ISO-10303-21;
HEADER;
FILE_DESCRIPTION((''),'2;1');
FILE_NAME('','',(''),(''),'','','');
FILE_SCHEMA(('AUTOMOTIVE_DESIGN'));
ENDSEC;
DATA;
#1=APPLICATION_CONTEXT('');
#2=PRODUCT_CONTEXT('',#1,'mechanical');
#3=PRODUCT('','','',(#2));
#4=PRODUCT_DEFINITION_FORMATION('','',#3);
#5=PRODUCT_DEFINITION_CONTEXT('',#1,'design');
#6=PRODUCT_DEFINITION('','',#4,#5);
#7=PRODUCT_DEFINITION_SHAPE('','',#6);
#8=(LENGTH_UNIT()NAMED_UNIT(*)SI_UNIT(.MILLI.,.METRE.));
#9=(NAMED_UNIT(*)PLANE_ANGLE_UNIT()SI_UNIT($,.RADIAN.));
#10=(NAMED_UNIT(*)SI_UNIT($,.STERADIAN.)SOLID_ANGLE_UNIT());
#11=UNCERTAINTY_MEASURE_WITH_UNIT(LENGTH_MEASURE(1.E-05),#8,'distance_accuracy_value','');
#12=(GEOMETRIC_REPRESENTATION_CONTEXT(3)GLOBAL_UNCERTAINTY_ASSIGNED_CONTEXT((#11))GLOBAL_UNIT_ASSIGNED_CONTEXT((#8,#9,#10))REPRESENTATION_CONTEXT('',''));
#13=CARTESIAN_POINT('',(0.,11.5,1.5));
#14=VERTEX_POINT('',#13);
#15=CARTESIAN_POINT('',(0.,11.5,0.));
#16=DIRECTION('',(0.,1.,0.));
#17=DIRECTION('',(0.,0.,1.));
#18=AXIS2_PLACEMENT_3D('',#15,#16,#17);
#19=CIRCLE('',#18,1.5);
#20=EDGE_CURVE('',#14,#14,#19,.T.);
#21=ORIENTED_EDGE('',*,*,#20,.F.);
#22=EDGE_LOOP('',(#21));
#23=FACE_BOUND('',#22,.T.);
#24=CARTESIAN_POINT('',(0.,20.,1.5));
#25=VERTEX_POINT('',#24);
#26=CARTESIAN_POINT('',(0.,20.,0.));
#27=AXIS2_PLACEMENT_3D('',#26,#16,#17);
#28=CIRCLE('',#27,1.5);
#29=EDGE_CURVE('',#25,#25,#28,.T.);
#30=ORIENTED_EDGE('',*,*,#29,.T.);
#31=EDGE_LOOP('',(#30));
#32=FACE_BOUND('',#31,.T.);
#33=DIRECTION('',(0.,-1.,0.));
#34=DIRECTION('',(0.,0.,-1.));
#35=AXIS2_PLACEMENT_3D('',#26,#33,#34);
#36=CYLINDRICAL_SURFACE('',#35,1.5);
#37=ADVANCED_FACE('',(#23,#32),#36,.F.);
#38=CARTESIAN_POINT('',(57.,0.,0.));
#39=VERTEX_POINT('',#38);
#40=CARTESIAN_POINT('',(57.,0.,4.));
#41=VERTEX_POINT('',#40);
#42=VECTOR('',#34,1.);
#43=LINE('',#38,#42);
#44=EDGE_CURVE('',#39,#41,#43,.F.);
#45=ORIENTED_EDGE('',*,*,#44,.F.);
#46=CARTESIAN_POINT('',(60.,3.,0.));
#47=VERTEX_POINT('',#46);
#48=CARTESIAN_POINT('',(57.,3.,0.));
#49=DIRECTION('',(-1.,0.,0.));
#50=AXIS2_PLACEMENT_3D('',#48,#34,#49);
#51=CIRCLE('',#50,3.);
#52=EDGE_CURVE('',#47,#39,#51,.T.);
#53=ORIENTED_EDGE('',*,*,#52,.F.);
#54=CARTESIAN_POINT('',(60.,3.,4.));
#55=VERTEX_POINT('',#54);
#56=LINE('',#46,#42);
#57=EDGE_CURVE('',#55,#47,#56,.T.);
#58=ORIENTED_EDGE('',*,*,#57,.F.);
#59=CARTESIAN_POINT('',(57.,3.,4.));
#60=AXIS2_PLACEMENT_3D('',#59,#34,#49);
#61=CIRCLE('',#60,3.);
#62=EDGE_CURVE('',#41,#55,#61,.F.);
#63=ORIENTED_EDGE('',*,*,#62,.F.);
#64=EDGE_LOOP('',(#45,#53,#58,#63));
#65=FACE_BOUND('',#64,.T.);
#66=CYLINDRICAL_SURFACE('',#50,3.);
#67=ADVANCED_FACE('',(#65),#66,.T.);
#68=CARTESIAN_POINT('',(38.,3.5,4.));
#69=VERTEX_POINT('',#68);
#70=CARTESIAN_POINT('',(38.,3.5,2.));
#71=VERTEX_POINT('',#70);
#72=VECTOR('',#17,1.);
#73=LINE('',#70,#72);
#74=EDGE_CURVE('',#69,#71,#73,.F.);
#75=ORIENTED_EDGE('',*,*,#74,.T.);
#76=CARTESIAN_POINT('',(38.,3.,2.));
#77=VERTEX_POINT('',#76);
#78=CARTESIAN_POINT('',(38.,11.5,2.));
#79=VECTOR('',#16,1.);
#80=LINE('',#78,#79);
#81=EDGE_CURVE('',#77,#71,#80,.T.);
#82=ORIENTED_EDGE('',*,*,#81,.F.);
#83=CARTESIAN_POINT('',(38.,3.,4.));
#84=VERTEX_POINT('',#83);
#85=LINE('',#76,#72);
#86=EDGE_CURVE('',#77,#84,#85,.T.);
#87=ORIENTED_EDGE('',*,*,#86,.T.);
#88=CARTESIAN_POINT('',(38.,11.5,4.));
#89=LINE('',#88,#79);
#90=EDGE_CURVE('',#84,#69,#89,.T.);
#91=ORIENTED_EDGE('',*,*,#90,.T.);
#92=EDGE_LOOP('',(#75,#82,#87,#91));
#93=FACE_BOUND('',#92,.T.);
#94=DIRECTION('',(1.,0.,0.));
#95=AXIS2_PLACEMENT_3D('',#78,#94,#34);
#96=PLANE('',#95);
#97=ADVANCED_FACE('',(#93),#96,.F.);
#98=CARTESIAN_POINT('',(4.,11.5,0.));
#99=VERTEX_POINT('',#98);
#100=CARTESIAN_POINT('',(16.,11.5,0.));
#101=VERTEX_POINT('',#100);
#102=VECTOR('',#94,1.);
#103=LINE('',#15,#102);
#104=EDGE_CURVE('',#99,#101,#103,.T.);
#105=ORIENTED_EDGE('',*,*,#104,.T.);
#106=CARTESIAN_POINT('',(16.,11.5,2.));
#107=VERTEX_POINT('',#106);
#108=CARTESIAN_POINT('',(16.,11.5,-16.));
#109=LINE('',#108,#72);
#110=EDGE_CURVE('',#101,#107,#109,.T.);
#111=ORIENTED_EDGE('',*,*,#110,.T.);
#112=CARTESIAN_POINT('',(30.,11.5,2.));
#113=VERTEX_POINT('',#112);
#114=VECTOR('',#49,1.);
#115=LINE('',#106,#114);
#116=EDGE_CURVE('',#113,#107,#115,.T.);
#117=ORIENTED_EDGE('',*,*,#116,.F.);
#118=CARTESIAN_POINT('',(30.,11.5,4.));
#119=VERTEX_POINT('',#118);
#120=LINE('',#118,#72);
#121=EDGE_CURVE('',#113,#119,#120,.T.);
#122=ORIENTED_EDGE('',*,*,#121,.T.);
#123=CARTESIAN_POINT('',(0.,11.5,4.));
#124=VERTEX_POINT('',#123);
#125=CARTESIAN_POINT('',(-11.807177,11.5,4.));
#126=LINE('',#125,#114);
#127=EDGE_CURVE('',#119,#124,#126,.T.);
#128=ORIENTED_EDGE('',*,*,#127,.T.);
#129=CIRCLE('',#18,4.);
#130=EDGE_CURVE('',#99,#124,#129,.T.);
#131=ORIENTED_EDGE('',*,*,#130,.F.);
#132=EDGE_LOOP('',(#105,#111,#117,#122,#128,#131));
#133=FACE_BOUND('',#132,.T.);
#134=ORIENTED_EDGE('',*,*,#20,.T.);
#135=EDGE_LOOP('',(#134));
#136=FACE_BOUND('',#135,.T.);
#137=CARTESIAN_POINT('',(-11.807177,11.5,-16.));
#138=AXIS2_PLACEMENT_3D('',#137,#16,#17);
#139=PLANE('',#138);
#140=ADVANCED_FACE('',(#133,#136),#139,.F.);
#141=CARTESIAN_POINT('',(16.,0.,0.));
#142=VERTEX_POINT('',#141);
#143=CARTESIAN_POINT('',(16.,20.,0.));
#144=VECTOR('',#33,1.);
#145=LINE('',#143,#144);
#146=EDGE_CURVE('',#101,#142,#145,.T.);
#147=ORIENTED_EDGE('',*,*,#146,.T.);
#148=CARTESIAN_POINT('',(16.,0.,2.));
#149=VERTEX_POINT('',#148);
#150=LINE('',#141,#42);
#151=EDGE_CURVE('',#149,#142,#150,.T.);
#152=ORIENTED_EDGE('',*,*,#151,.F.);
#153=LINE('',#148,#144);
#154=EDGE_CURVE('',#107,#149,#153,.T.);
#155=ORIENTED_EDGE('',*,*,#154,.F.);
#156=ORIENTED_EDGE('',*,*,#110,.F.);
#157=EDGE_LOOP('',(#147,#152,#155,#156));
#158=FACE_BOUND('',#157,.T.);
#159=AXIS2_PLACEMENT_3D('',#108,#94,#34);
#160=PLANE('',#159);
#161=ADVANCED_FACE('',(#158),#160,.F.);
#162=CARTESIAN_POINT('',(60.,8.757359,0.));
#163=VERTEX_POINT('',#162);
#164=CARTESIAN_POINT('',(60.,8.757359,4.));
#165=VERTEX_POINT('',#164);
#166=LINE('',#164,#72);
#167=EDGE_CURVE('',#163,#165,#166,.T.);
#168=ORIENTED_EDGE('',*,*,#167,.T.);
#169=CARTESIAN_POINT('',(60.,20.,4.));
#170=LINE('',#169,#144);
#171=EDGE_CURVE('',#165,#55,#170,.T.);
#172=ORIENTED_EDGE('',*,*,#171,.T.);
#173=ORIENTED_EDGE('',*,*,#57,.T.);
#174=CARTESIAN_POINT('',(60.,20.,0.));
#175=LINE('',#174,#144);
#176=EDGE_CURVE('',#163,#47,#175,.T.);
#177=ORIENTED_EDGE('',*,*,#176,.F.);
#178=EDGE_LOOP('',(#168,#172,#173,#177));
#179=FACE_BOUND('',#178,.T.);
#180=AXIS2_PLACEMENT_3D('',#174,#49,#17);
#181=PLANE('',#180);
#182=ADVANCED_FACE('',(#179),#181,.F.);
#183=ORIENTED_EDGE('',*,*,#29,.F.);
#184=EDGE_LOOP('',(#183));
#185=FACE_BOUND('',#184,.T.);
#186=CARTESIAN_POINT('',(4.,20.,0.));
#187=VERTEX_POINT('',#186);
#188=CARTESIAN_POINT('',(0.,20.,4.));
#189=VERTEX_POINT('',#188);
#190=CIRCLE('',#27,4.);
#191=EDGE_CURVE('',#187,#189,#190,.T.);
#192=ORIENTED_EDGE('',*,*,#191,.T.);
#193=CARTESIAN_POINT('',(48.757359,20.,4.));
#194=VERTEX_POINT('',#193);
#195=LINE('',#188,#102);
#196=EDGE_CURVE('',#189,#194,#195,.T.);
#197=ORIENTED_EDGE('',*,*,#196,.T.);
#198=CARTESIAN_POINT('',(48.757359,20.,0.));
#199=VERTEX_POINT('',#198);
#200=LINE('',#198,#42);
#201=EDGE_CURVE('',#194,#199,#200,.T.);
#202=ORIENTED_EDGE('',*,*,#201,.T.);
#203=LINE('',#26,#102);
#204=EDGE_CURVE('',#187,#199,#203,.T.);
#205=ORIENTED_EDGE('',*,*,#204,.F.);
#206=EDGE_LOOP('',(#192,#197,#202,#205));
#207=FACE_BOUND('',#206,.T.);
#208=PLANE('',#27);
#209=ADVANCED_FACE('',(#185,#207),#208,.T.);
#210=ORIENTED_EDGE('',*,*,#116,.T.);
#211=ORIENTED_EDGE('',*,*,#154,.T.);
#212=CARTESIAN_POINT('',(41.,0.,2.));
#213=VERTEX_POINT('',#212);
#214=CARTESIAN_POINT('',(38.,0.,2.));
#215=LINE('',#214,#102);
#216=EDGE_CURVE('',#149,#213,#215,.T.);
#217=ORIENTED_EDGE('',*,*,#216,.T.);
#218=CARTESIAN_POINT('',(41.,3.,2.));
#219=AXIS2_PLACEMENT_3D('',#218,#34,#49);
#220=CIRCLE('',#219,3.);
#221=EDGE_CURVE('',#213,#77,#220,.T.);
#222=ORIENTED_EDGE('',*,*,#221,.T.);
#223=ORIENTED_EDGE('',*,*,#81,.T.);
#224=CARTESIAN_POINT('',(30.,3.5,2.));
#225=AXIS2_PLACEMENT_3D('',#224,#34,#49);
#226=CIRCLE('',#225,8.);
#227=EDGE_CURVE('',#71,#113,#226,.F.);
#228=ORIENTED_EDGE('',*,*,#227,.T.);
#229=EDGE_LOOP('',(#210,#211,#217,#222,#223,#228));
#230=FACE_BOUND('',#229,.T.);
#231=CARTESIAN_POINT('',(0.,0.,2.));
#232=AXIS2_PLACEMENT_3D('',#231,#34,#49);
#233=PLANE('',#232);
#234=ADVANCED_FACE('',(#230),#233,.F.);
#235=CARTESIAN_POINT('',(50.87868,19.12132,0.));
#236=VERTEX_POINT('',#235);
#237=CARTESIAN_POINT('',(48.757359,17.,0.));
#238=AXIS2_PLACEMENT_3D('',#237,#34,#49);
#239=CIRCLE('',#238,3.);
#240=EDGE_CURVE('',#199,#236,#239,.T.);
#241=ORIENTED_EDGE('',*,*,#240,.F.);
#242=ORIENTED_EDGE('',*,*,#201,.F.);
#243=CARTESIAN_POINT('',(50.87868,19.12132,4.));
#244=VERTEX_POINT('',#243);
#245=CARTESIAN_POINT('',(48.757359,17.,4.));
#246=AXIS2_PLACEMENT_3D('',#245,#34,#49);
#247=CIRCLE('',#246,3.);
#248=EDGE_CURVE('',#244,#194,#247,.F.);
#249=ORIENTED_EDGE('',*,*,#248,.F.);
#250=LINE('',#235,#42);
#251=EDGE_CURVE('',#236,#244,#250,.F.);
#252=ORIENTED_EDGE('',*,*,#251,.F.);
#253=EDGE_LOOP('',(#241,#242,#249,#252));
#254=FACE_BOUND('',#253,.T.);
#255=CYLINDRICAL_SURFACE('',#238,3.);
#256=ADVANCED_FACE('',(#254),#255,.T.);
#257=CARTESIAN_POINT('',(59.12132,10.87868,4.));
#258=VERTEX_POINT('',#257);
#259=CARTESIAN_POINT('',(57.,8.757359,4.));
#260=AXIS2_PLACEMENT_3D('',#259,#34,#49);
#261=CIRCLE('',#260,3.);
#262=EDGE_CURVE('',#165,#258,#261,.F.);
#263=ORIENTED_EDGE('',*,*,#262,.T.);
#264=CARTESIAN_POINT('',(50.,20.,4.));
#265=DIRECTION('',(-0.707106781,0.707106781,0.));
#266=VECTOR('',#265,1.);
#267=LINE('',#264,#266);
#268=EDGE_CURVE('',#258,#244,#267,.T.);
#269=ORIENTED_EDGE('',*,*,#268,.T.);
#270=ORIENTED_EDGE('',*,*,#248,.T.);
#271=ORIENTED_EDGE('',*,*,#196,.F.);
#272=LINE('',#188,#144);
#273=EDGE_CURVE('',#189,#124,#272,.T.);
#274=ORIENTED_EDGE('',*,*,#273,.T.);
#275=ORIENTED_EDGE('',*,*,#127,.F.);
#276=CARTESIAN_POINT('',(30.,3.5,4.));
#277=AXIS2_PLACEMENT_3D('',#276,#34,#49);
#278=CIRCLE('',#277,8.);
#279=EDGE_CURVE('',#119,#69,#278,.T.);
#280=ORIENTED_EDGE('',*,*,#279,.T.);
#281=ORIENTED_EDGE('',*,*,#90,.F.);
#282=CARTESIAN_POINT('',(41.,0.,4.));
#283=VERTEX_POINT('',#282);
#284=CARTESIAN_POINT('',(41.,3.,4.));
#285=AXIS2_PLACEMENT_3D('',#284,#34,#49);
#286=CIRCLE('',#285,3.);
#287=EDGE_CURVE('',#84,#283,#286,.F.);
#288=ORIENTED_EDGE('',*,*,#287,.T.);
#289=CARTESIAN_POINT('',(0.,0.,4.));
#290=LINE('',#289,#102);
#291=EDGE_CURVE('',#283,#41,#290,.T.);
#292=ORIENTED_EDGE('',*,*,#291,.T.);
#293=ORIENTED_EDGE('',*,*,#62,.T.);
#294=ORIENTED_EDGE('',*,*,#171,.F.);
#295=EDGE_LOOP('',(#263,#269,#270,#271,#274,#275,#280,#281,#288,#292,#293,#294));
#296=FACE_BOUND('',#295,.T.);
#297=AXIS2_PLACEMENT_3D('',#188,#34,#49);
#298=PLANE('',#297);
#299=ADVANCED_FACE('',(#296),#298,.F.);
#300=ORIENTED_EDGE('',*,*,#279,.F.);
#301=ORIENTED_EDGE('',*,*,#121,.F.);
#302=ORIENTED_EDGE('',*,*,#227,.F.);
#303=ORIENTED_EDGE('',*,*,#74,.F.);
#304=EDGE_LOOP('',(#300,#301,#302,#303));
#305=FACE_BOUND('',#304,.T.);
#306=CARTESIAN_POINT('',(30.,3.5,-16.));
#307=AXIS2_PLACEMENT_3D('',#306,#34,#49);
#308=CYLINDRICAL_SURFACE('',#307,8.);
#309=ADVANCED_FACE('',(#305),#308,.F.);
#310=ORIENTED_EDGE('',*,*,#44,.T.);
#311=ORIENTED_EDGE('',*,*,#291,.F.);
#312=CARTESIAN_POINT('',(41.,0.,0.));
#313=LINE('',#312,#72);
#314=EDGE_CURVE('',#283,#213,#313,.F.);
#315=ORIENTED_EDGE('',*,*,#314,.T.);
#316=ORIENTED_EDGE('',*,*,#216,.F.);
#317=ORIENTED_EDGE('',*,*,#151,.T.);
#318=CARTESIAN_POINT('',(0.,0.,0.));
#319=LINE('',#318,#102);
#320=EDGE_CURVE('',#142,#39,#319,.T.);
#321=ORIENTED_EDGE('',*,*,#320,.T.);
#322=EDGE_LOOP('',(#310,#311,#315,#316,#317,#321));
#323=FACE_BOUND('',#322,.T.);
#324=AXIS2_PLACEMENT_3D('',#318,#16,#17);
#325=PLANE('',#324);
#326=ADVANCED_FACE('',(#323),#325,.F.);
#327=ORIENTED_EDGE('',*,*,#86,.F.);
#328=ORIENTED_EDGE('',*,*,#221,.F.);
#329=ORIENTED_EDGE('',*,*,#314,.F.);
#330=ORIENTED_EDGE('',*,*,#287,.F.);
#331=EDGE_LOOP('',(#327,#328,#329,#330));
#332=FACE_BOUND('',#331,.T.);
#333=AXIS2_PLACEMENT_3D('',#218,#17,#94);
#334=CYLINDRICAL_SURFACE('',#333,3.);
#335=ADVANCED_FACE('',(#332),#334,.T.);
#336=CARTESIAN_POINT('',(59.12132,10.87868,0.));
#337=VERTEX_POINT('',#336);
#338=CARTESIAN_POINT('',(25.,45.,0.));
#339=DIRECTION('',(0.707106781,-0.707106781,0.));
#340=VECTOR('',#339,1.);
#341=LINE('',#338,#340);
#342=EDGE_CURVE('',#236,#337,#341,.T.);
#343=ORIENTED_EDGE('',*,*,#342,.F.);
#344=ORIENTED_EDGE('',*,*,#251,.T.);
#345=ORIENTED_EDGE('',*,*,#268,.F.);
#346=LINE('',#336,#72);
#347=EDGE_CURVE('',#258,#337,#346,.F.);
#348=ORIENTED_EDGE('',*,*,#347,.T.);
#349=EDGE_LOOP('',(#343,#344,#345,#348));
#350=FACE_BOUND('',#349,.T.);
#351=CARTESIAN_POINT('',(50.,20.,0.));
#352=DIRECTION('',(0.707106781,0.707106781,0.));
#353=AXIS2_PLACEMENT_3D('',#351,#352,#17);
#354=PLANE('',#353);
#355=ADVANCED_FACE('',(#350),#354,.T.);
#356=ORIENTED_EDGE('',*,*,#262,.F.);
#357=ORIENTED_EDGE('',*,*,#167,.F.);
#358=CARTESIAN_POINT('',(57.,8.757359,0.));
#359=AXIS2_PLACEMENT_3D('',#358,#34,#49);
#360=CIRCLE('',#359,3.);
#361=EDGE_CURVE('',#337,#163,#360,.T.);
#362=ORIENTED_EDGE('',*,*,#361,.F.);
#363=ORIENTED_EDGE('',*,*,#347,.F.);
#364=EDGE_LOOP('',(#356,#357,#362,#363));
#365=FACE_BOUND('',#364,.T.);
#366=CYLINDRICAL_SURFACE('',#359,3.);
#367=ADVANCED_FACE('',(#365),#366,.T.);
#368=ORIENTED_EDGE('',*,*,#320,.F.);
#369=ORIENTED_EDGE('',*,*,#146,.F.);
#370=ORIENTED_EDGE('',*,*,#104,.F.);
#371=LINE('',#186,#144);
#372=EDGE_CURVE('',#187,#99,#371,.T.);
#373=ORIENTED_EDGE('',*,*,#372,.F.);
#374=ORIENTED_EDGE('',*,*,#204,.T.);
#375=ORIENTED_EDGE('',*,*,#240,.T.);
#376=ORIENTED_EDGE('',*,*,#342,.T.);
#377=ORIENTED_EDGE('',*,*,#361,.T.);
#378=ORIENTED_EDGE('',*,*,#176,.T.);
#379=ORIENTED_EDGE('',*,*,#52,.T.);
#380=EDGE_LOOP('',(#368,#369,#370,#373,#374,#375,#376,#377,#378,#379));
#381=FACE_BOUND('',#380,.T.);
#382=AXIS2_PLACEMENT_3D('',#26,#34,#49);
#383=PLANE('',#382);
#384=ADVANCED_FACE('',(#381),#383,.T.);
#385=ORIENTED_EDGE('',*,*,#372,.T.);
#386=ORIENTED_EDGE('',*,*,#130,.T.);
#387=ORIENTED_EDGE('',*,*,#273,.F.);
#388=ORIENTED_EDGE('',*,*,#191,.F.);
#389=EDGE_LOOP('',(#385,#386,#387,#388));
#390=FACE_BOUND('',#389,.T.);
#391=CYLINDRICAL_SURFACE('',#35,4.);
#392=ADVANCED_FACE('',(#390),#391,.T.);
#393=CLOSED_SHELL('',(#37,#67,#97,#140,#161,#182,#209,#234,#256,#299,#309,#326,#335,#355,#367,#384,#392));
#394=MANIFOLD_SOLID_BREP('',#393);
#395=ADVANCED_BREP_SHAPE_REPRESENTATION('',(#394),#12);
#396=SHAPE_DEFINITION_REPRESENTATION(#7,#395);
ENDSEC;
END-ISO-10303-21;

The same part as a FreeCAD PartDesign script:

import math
import FreeCAD as App
import Part
import Sketcher

V = App.Vector


def edges_at(feature, points):
    """Names of the edges that pass closest to the given points."""
    edges = feature.Shape.Edges
    near = lambda p: min(range(len(edges)), key=lambda i: edges[i].distToShape(Part.Vertex(*p))[0])
    return sorted({f"Edge{near(p) + 1}" for p in points})

doc = App.newDocument("Part")
body = doc.addObject("PartDesign::Body", "Body")

# Sketch on XZ plane
sketch1 = body.newObject("Sketcher::SketchObject", "Sketch")
sketch1.AttachmentSupport = (doc.getObject("XZ_Plane"), [""])
sketch1.MapMode = "FlatFace"
sketch1.addGeometry(Part.ArcOfCircle(Part.Circle(V(0, 0, 0), V(0, 0, 1), 4), math.radians(90), math.radians(360)), False)
sketch1.addGeometry(Part.LineSegment(V(0, 4, 0), V(60, 4, 0)), False)
sketch1.addGeometry(Part.LineSegment(V(60, 4, 0), V(60, 0, 0)), False)
sketch1.addGeometry(Part.LineSegment(V(60, 0, 0), V(4, 0, 0)), False)
sketch1.addGeometry(Part.Circle(V(0, 0, 0), V(0, 0, 1), 1.5), False)
sketch1.addConstraint(Sketcher.Constraint("Tangent", 0, 1, 1, 1))
sketch1.addConstraint(Sketcher.Constraint("Coincident", 1, 2, 2, 1))
sketch1.addConstraint(Sketcher.Constraint("Coincident", 2, 2, 3, 1))
sketch1.addConstraint(Sketcher.Constraint("Coincident", 3, 2, 0, 2))
sketch1.addConstraint(Sketcher.Constraint("Horizontal", 1))
sketch1.addConstraint(Sketcher.Constraint("Vertical", 2))
sketch1.addConstraint(Sketcher.Constraint("Horizontal", 3))
sketch1.addConstraint(Sketcher.Constraint("Coincident", 0, 3, -1, 1))
sketch1.addConstraint(Sketcher.Constraint("Coincident", 4, 3, -1, 1))
sketch1.addConstraint(Sketcher.Constraint("PointOnObject", 2, 2, -1))
sketch1.addConstraint(Sketcher.Constraint("Diameter", 4, 3.0))
sketch1.addConstraint(Sketcher.Constraint("Radius", 0, 4.0))
sketch1.addConstraint(Sketcher.Constraint("DistanceX", 1, 1, 1, 2, 60.0))
pad1 = body.newObject("PartDesign::Pad", "Pad")
pad1.Profile = sketch1
pad1.Length = 20
pad1.Reversed = True

# Sketch on XY plane
sketch2 = body.newObject("Sketcher::SketchObject", "Sketch001")
sketch2.AttachmentSupport = (doc.getObject("XY_Plane"), [""])
sketch2.MapMode = "FlatFace"
sketch2.AttachmentOffset = App.Placement(V(0, 0, 4), App.Rotation())
sketch2.addGeometry(Part.LineSegment(V(-12, 12, 0), V(-12, 0, 0)), False)
sketch2.addGeometry(Part.LineSegment(V(-12, 0, 0), V(16, 0, 0)), False)
sketch2.addGeometry(Part.LineSegment(V(16, 0, 0), V(16, 12, 0)), False)
sketch2.addGeometry(Part.LineSegment(V(16, 12, 0), V(-12, 12, 0)), False)
sketch2.addConstraint(Sketcher.Constraint("Coincident", 0, 2, 1, 1))
sketch2.addConstraint(Sketcher.Constraint("Coincident", 1, 2, 2, 1))
sketch2.addConstraint(Sketcher.Constraint("Coincident", 2, 2, 3, 1))
sketch2.addConstraint(Sketcher.Constraint("Coincident", 3, 2, 0, 1))
sketch2.addConstraint(Sketcher.Constraint("Vertical", 0))
sketch2.addConstraint(Sketcher.Constraint("Horizontal", 1))
sketch2.addConstraint(Sketcher.Constraint("Vertical", 2))
sketch2.addConstraint(Sketcher.Constraint("Horizontal", 3))
sketch2.addConstraint(Sketcher.Constraint("PointOnObject", 0, 2, -1))
sketch2.addConstraint(Sketcher.Constraint("DistanceY", 0, 2, 0, 1, 11.5))
sketch2.addConstraint(Sketcher.Constraint("DistanceX", -1, 1, 1, 2, 16.0))
sketch2.addConstraint(Sketcher.Constraint("DistanceX", 1, 1, 1, 2, 27.807177))
pocket1 = body.newObject("PartDesign::Pocket", "Pocket")
pocket1.Profile = sketch2
pocket1.Length = 20

# Sketch on XY plane
sketch3 = body.newObject("Sketcher::SketchObject", "Sketch002")
sketch3.AttachmentSupport = (doc.getObject("XY_Plane"), [""])
sketch3.MapMode = "FlatFace"
sketch3.AttachmentOffset = App.Placement(V(0, 0, 4), App.Rotation())
sketch3.addGeometry(Part.LineSegment(V(16, 12, 0), V(16, 0, 0)), False)
sketch3.addGeometry(Part.LineSegment(V(16, 0, 0), V(38, 0, 0)), False)
sketch3.addGeometry(Part.LineSegment(V(38, 0, 0), V(38, 12, 0)), False)
sketch3.addGeometry(Part.LineSegment(V(38, 12, 0), V(16, 12, 0)), False)
sketch3.addConstraint(Sketcher.Constraint("Coincident", 0, 2, 1, 1))
sketch3.addConstraint(Sketcher.Constraint("Coincident", 1, 2, 2, 1))
sketch3.addConstraint(Sketcher.Constraint("Coincident", 2, 2, 3, 1))
sketch3.addConstraint(Sketcher.Constraint("Coincident", 3, 2, 0, 1))
sketch3.addConstraint(Sketcher.Constraint("Vertical", 0))
sketch3.addConstraint(Sketcher.Constraint("Horizontal", 1))
sketch3.addConstraint(Sketcher.Constraint("Vertical", 2))
sketch3.addConstraint(Sketcher.Constraint("Horizontal", 3))
sketch3.addConstraint(Sketcher.Constraint("PointOnObject", 0, 2, -1))
sketch3.addConstraint(Sketcher.Constraint("DistanceX", 1, 1, 1, 2, 22.0))
sketch3.addConstraint(Sketcher.Constraint("DistanceY", 0, 2, 0, 1, 11.5))
sketch3.addConstraint(Sketcher.Constraint("DistanceX", -1, 1, 0, 2, 16.0))
pocket2 = body.newObject("PartDesign::Pocket", "Pocket001")
pocket2.Profile = sketch3
pocket2.Length = 2
doc.recompute()

chamfer = body.newObject("PartDesign::Chamfer", "Chamfer")
chamfer.Base = (pocket2, edges_at(pocket2, [(60, 20, 2)]))
chamfer.Size = 10
doc.recompute()

fillet = body.newObject("PartDesign::Fillet", "Fillet")
fillet.Base = (chamfer, edges_at(chamfer, [(60, 0, 2)]))
fillet.Radius = 3
doc.recompute()

fillet2 = body.newObject("PartDesign::Fillet", "Fillet001")
fillet2.Base = (fillet, edges_at(fillet, [(50, 20, 2), (60, 10, 2)]))
fillet2.Radius = 3
doc.recompute()

fillet3 = body.newObject("PartDesign::Fillet", "Fillet002")
fillet3.Base = (fillet2, edges_at(fillet2, [(38, 0, 3)]))
fillet3.Radius = 3
doc.recompute()

fillet4 = body.newObject("PartDesign::Fillet", "Fillet003")
fillet4.Base = (fillet3, edges_at(fillet3, [(38, 11.5, 3)]))
fillet4.Radius = 8

doc.recompute()
